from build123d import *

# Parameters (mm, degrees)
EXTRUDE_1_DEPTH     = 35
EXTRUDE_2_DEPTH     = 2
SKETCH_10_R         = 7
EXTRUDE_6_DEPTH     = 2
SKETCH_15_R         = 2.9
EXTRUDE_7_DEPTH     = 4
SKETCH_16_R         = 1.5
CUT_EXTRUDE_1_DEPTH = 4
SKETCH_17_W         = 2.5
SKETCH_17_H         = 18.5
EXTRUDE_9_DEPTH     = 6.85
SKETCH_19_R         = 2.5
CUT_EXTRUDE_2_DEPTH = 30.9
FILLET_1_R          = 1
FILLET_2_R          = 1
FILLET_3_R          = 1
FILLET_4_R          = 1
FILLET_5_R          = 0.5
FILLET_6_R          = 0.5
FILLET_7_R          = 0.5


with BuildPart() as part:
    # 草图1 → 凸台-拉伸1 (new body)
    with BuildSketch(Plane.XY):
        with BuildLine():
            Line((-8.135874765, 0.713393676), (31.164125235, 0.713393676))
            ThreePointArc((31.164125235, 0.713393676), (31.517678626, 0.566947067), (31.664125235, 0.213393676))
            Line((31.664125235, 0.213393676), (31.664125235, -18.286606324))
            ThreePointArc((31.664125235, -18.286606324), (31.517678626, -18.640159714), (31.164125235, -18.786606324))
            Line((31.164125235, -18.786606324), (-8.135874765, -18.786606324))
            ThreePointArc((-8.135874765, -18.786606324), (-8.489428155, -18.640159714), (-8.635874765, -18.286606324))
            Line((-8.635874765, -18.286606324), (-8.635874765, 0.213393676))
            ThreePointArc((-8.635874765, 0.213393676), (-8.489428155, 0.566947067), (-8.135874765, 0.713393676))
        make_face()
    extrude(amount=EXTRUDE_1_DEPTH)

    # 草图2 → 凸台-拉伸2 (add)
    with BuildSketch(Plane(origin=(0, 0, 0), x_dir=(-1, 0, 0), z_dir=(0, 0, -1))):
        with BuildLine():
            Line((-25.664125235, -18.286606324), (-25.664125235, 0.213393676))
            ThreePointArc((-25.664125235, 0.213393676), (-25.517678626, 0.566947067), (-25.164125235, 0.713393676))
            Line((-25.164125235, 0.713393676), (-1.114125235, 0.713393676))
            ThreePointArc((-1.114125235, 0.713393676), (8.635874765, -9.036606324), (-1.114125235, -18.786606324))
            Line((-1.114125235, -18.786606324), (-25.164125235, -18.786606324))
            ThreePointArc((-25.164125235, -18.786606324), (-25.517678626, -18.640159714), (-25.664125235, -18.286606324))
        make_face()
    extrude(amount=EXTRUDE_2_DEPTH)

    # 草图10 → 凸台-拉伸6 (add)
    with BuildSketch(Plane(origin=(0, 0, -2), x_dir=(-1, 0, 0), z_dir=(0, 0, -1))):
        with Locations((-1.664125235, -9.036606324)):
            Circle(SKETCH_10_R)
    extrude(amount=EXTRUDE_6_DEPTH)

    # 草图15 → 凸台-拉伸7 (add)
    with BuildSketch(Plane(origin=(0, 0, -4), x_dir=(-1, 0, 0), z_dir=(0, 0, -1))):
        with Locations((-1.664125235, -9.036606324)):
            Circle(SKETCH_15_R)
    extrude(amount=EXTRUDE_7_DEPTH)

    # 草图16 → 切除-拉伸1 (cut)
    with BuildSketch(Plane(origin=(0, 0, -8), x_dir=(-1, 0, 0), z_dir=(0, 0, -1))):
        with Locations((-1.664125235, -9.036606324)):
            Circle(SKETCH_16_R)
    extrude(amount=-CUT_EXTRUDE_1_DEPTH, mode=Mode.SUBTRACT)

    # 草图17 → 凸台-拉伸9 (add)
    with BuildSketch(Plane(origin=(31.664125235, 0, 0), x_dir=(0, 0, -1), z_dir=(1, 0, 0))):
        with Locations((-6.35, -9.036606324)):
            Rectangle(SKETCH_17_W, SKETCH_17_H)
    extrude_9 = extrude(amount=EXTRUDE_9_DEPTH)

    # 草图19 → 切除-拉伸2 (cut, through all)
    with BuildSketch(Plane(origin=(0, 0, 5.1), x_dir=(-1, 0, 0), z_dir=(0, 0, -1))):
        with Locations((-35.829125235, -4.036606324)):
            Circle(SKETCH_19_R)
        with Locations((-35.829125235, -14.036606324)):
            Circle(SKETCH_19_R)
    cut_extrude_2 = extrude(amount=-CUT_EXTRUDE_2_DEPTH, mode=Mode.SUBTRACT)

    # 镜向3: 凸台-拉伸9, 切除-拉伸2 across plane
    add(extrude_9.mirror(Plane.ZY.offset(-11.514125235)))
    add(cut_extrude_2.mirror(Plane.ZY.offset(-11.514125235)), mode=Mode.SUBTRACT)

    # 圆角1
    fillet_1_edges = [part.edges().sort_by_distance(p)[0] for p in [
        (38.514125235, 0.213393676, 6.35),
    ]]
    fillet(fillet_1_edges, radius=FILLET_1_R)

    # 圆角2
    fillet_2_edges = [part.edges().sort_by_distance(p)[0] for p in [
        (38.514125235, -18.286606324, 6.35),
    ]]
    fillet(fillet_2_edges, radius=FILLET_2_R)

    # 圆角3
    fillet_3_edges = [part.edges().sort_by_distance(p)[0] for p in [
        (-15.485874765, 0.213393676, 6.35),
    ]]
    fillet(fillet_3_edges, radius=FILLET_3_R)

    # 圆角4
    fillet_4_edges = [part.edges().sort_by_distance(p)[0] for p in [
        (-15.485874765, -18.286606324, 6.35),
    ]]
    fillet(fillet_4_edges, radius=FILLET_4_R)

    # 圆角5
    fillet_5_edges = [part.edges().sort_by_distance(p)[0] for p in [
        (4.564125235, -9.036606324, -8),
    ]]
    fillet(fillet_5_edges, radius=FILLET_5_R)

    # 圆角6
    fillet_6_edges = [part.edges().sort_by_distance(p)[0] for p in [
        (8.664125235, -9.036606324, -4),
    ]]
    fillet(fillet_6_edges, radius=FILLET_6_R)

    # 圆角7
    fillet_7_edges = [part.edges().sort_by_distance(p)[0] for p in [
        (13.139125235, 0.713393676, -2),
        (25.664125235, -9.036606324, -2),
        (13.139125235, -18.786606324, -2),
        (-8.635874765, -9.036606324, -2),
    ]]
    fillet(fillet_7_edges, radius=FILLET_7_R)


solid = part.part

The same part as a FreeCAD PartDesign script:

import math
import FreeCAD as App
import Part
import Sketcher
Q = App.Units.Quantity


def edges_at(feature, points):
    """Names of the edges that pass closest to the given points."""
    edges = feature.Shape.Edges
    near = lambda p: min(range(len(edges)), key=lambda i: edges[i].distToShape(Part.Vertex(*p))[0])
    return sorted({f"Edge{near(p) + 1}" for p in points})

doc = App.newDocument("Part")
body = doc.addObject("PartDesign::Body", "Body")

sketch1 = body.newObject("Sketcher::SketchObject", "Sketch")
sketch1.AttachmentSupport = (doc.getObject("XY_Plane"), [""])
sketch1.MapMode = "FlatFace"
sketch1.addGeometry([
    Part.LineSegment(App.Vector(31.164125, 0.713394, 0), App.Vector(-8.135875, 0.713394, 0)),
    Part.ArcOfCircle(Part.Circle(App.Vector(-8.135875, 0.213394, 0), App.Vector(0, 0, 1), 0.5), math.radians(90), math.radians(180)),
    Part.LineSegment(App.Vector(-8.635875, 0.213394, 0), App.Vector(-8.635875, -18.286606, 0)),
    Part.ArcOfCircle(Part.Circle(App.Vector(-8.135875, -18.286606, 0), App.Vector(0, 0, 1), 0.5), math.radians(-180), math.radians(-90)),
    Part.LineSegment(App.Vector(-8.135875, -18.786606, 0), App.Vector(31.164125, -18.786606, 0)),
    Part.ArcOfCircle(Part.Circle(App.Vector(31.164125, -18.286606, 0), App.Vector(0, 0, 1), 0.5), math.radians(-90), math.radians(0)),
    Part.LineSegment(App.Vector(31.664125, -18.286606, 0), App.Vector(31.664125, 0.213394, 0)),
    Part.ArcOfCircle(Part.Circle(App.Vector(31.164125, 0.213394, 0), App.Vector(0, 0, 1), 0.5), math.radians(0), math.radians(90)),
], False)
sketch1.addConstraint([
    Sketcher.Constraint("Tangent", 0, 2, 1, 1),
    Sketcher.Constraint("Tangent", 1, 2, 2, 1),
    Sketcher.Constraint("Tangent", 2, 2, 3, 1),
    Sketcher.Constraint("Tangent", 3, 2, 4, 1),
    Sketcher.Constraint("Tangent", 4, 2, 5, 1),
    Sketcher.Constraint("Tangent", 5, 2, 6, 1),
    Sketcher.Constraint("Tangent", 6, 2, 7, 1),
    Sketcher.Constraint("Tangent", 7, 2, 0, 1),
    Sketcher.Constraint("Horizontal", 0),
    Sketcher.Constraint("Vertical", 2),
    Sketcher.Constraint("Horizontal", 4),
    Sketcher.Constraint("Vertical", 6),
    Sketcher.Constraint("Equal", 1, 3),
    Sketcher.Constraint("Equal", 3, 5),
    Sketcher.Constraint("Equal", 5, 7),
    Sketcher.Constraint("Radius", 1, Q("0.5 mm")),
    Sketcher.Constraint("DistanceX", 0, 2, 0, 1, Q("39.3 mm")),
    Sketcher.Constraint("DistanceY", 2, 2, 2, 1, Q("18.5 mm")),
    Sketcher.Constraint("DistanceX", 1, 3, -1, 1, Q("8.135875 mm")),
    Sketcher.Constraint("DistanceY", -1, 1, 1, 3, Q("0.213394 mm")),
])
pad1 = body.newObject("PartDesign::Pad", "Pad")
pad1.Profile = sketch1
pad1.Length = 35

sketch2 = body.newObject("Sketcher::SketchObject", "Sketch001")
sketch2.AttachmentSupport = (doc.getObject("XY_Plane"), [""])
sketch2.MapMode = "FlatFace"
sketch2.addGeometry([
    Part.LineSegment(App.Vector(25.664125, 0.213394, 0), App.Vector(25.664125, -18.286606, 0)),
    Part.ArcOfCircle(Part.Circle(App.Vector(25.164125, -18.286606, 0), App.Vector(0, 0, 1), 0.5), math.radians(-90), math.radians(0)),
    Part.LineSegment(App.Vector(25.164125, -18.786606, 0), App.Vector(1.114125, -18.786606, 0)),
    Part.ArcOfCircle(Part.Circle(App.Vector(1.114125, -9.036606, 0), App.Vector(0, 0, 1), 9.75), math.radians(90), math.radians(270)),
    Part.LineSegment(App.Vector(1.114125, 0.713394, 0), App.Vector(25.164125, 0.713394, 0)),
    Part.ArcOfCircle(Part.Circle(App.Vector(25.164125, 0.213394, 0), App.Vector(0, 0, 1), 0.5), math.radians(0), math.radians(90)),
], False)
sketch2.addConstraint([
    Sketcher.Constraint("Tangent", 0, 2, 1, 2),
    Sketcher.Constraint("Tangent", 1, 1, 2, 1),
    Sketcher.Constraint("Tangent", 2, 2, 3, 2),
    Sketcher.Constraint("Tangent", 3, 1, 4, 1),
    Sketcher.Constraint("Tangent", 4, 2, 5, 2),
    Sketcher.Constraint("Tangent", 5, 1, 0, 1),
    Sketcher.Constraint("Vertical", 0),
    Sketcher.Constraint("Horizontal", 2),
    Sketcher.Constraint("Horizontal", 4),
    Sketcher.Constraint("Equal", 1, 5),
    Sketcher.Constraint("Radius", 1, Q("0.5 mm")),
    Sketcher.Constraint("Radius", 3, Q("9.75 mm")),
    Sketcher.Constraint("DistanceX", 2, 2, 2, 1, Q("24.05 mm")),
    Sketcher.Constraint("DistanceX", -1, 1, 1, 3, Q("25.164125 mm")),
    Sketcher.Constraint("DistanceY", 1, 3, -1, 1, Q("18.286606 mm")),
])
pad2 = body.newObject("PartDesign::Pad", "Pad001")
pad2.Profile = sketch2
pad2.Length = 2
pad2.Reversed = True

sketch3 = body.newObject("Sketcher::SketchObject", "Sketch002")
sketch3.AttachmentSupport = (doc.getObject("XY_Plane"), [""])
sketch3.MapMode = "FlatFace"
sketch3.AttachmentOffset = App.Placement(App.Vector(0, 0, -2), App.Rotation())
sketch3.addGeometry(Part.Circle(App.Vector(1.664125, -9.036606, 0), App.Vector(0, 0, 1), 7), False)
sketch3.addConstraint([
    Sketcher.Constraint("Diameter", 0, Q("14 mm")),
    Sketcher.Constraint("DistanceX", -1, 1, 0, 3, Q("1.664125 mm")),
    Sketcher.Constraint("DistanceY", 0, 3, -1, 1, Q("9.036606 mm")),
])
pad3 = body.newObject("PartDesign::Pad", "Pad002")
pad3.Profile = sketch3
pad3.Length = 2
pad3.Reversed = True

sketch4 = body.newObject("Sketcher::SketchObject", "Sketch003")
sketch4.AttachmentSupport = (doc.getObject("XY_Plane"), [""])
sketch4.MapMode = "FlatFace"
sketch4.AttachmentOffset = App.Placement(App.Vector(0, 0, -4), App.Rotation())
sketch4.addGeometry(Part.Circle(App.Vector(1.664125, -9.036606, 0), App.Vector(0, 0, 1), 2.9), False)
sketch4.addConstraint([
    Sketcher.Constraint("Diameter", 0, Q("5.8 mm")),
    Sketcher.Constraint("DistanceX", -1, 1, 0, 3, Q("1.664125 mm")),
    Sketcher.Constraint("DistanceY", 0, 3, -1, 1, Q("9.036606 mm")),
])
pad4 = body.newObject("PartDesign::Pad", "Pad003")
pad4.Profile = sketch4
pad4.Length = 4
pad4.Reversed = True

sketch5 = body.newObject("Sketcher::SketchObject", "Sketch004")
sketch5.AttachmentSupport = (doc.getObject("XY_Plane"), [""])
sketch5.MapMode = "FlatFace"
sketch5.AttachmentOffset = App.Placement(App.Vector(0, 0, -8), App.Rotation())
sketch5.addGeometry(Part.Circle(App.Vector(1.664125, -9.036606, 0), App.Vector(0, 0, 1), 1.5), False)
sketch5.addConstraint([
    Sketcher.Constraint("Diameter", 0, Q("3 mm")),
    Sketcher.Constraint("DistanceX", -1, 1, 0, 3, Q("1.664125 mm")),
    Sketcher.Constraint("DistanceY", 0, 3, -1, 1, Q("9.036606 mm")),
])
pocket1 = body.newObject("PartDesign::Pocket", "Pocket")
pocket1.Profile = sketch5
pocket1.Length = 4
pocket1.Reversed = True

sketch6 = body.newObject("Sketcher::SketchObject", "Sketch005")
sketch6.AttachmentSupport = (doc.getObject("YZ_Plane"), [""])
sketch6.MapMode = "FlatFace"
sketch6.AttachmentOffset = App.Placement(App.Vector(0, 0, 31.664125), App.Rotation())
sketch6.addGeometry([
    Part.LineSegment(App.Vector(0.213394, 7.6, 0), App.Vector(-18.286606, 7.6, 0)),
    Part.LineSegment(App.Vector(-18.286606, 7.6, 0), App.Vector(-18.286606, 5.1, 0)),
    Part.LineSegment(App.Vector(-18.286606, 5.1, 0), App.Vector(0.213394, 5.1, 0)),
    Part.LineSegment(App.Vector(0.213394, 5.1, 0), App.Vector(0.213394, 7.6, 0)),
], False)
sketch6.addConstraint([
    Sketcher.Constraint("Coincident", 0, 2, 1, 1),
    Sketcher.Constraint("Coincident", 1, 2, 2, 1),
    Sketcher.Constraint("Coincident", 2, 2, 3, 1),
    Sketcher.Constraint("Coincident", 3, 2, 0, 1),
    Sketcher.Constraint("Horizontal", 0),
    Sketcher.Constraint("Vertical", 1),
    Sketcher.Constraint("Horizontal", 2),
    Sketcher.Constraint("Vertical", 3),
    Sketcher.Constraint("DistanceX", 0, 2, 0, 1, Q("18.5 mm")),
    Sketcher.Constraint("DistanceY", 1, 2, 1, 1, Q("2.5 mm")),
    Sketcher.Constraint("DistanceY", -1, 1, 0, 2, Q("7.6 mm")),
    Sketcher.Constraint("DistanceX", 0, 2, -1, 1, Q("18.286606 mm")),
])
pad5 = body.newObject("PartDesign::Pad", "Pad004")
pad5.Profile = sketch6
pad5.Length = 6.85

sketch7 = body.newObject("Sketcher::SketchObject", "Sketch006")
sketch7.AttachmentSupport = (doc.getObject("XY_Plane"), [""])
sketch7.MapMode = "FlatFace"
sketch7.AttachmentOffset = App.Placement(App.Vector(0, 0, 5.1), App.Rotation())
sketch7.addGeometry([
    Part.Circle(App.Vector(35.829125, -4.036606, 0), App.Vector(0, 0, 1), 2.5),
    Part.Circle(App.Vector(35.829125, -14.036606, 0), App.Vector(0, 0, 1), 2.5),
], False)
sketch7.addConstraint([
    Sketcher.Constraint("Equal", 0, 1),
    Sketcher.Constraint("Vertical", 0, 3, 1, 3),
    Sketcher.Constraint("Diameter", 0, Q("5 mm")),
    Sketcher.Constraint("DistanceY", 1, 3, 0, 3, Q("10 mm")),
    Sketcher.Constraint("DistanceX", -1, 1, 0, 3, Q("35.829125 mm")),
    Sketcher.Constraint("DistanceY", 0, 3, -1, 1, Q("4.036606 mm")),
])
pocket2 = body.newObject("PartDesign::Pocket", "Pocket001")
pocket2.Profile = sketch7
pocket2.Type = "ThroughAll"
pocket2.Reversed = True
doc.recompute()

datumplane = body.newObject("PartDesign::Plane", "DatumPlane")
datumplane.AttachmentSupport = (doc.getObject("YZ_Plane"), [""])
datumplane.MapMode = "FlatFace"
datumplane.AttachmentOffset = App.Placement(App.Vector(0, 0, 11.514125), App.Rotation())
mirrored = body.newObject("PartDesign::Mirrored", "Mirrored")
mirrored.Originals = [pad5, pocket2]
mirrored.MirrorPlane = (datumplane, [""])
body.Tip = mirrored
doc.recompute()

fillet = body.newObject("PartDesign::Fillet", "Fillet")
fillet.Base = (mirrored, edges_at(mirrored, [(38.514, 0.213, 6.35)]))
fillet.Radius = 1
doc.recompute()

fillet2 = body.newObject("PartDesign::Fillet", "Fillet001")
fillet2.Base = (fillet, edges_at(fillet, [(38.514, -18.287, 6.35)]))
fillet2.Radius = 1
doc.recompute()

fillet3 = body.newObject("PartDesign::Fillet", "Fillet002")
fillet3.Base = (fillet2, edges_at(fillet2, [(-15.486, 0.213, 6.35)]))
fillet3.Radius = 1
doc.recompute()

fillet4 = body.newObject("PartDesign::Fillet", "Fillet003")
fillet4.Base = (fillet3, edges_at(fillet3, [(-15.486, -18.287, 6.35)]))
fillet4.Radius = 1
doc.recompute()

fillet5 = body.newObject("PartDesign::Fillet", "Fillet004")
fillet5.Base = (fillet4, edges_at(fillet4, [(4.564, -9.037, -8)]))
fillet5.Radius = 0.5
doc.recompute()

fillet6 = body.newObject("PartDesign::Fillet", "Fillet005")
fillet6.Base = (fillet5, edges_at(fillet5, [(8.664, -9.037, -4)]))
fillet6.Radius = 0.5
doc.recompute()

fillet7 = body.newObject("PartDesign::Fillet", "Fillet006")
fillet7.Base = (fillet6, edges_at(fillet6, [
    (13.139, 0.713, -2),
    (25.664, -9.037, -2),
    (13.139, -18.787, -2),
    (-8.636, -9.037, -2),
]))
fillet7.Radius = 0.5

doc.recompute()
